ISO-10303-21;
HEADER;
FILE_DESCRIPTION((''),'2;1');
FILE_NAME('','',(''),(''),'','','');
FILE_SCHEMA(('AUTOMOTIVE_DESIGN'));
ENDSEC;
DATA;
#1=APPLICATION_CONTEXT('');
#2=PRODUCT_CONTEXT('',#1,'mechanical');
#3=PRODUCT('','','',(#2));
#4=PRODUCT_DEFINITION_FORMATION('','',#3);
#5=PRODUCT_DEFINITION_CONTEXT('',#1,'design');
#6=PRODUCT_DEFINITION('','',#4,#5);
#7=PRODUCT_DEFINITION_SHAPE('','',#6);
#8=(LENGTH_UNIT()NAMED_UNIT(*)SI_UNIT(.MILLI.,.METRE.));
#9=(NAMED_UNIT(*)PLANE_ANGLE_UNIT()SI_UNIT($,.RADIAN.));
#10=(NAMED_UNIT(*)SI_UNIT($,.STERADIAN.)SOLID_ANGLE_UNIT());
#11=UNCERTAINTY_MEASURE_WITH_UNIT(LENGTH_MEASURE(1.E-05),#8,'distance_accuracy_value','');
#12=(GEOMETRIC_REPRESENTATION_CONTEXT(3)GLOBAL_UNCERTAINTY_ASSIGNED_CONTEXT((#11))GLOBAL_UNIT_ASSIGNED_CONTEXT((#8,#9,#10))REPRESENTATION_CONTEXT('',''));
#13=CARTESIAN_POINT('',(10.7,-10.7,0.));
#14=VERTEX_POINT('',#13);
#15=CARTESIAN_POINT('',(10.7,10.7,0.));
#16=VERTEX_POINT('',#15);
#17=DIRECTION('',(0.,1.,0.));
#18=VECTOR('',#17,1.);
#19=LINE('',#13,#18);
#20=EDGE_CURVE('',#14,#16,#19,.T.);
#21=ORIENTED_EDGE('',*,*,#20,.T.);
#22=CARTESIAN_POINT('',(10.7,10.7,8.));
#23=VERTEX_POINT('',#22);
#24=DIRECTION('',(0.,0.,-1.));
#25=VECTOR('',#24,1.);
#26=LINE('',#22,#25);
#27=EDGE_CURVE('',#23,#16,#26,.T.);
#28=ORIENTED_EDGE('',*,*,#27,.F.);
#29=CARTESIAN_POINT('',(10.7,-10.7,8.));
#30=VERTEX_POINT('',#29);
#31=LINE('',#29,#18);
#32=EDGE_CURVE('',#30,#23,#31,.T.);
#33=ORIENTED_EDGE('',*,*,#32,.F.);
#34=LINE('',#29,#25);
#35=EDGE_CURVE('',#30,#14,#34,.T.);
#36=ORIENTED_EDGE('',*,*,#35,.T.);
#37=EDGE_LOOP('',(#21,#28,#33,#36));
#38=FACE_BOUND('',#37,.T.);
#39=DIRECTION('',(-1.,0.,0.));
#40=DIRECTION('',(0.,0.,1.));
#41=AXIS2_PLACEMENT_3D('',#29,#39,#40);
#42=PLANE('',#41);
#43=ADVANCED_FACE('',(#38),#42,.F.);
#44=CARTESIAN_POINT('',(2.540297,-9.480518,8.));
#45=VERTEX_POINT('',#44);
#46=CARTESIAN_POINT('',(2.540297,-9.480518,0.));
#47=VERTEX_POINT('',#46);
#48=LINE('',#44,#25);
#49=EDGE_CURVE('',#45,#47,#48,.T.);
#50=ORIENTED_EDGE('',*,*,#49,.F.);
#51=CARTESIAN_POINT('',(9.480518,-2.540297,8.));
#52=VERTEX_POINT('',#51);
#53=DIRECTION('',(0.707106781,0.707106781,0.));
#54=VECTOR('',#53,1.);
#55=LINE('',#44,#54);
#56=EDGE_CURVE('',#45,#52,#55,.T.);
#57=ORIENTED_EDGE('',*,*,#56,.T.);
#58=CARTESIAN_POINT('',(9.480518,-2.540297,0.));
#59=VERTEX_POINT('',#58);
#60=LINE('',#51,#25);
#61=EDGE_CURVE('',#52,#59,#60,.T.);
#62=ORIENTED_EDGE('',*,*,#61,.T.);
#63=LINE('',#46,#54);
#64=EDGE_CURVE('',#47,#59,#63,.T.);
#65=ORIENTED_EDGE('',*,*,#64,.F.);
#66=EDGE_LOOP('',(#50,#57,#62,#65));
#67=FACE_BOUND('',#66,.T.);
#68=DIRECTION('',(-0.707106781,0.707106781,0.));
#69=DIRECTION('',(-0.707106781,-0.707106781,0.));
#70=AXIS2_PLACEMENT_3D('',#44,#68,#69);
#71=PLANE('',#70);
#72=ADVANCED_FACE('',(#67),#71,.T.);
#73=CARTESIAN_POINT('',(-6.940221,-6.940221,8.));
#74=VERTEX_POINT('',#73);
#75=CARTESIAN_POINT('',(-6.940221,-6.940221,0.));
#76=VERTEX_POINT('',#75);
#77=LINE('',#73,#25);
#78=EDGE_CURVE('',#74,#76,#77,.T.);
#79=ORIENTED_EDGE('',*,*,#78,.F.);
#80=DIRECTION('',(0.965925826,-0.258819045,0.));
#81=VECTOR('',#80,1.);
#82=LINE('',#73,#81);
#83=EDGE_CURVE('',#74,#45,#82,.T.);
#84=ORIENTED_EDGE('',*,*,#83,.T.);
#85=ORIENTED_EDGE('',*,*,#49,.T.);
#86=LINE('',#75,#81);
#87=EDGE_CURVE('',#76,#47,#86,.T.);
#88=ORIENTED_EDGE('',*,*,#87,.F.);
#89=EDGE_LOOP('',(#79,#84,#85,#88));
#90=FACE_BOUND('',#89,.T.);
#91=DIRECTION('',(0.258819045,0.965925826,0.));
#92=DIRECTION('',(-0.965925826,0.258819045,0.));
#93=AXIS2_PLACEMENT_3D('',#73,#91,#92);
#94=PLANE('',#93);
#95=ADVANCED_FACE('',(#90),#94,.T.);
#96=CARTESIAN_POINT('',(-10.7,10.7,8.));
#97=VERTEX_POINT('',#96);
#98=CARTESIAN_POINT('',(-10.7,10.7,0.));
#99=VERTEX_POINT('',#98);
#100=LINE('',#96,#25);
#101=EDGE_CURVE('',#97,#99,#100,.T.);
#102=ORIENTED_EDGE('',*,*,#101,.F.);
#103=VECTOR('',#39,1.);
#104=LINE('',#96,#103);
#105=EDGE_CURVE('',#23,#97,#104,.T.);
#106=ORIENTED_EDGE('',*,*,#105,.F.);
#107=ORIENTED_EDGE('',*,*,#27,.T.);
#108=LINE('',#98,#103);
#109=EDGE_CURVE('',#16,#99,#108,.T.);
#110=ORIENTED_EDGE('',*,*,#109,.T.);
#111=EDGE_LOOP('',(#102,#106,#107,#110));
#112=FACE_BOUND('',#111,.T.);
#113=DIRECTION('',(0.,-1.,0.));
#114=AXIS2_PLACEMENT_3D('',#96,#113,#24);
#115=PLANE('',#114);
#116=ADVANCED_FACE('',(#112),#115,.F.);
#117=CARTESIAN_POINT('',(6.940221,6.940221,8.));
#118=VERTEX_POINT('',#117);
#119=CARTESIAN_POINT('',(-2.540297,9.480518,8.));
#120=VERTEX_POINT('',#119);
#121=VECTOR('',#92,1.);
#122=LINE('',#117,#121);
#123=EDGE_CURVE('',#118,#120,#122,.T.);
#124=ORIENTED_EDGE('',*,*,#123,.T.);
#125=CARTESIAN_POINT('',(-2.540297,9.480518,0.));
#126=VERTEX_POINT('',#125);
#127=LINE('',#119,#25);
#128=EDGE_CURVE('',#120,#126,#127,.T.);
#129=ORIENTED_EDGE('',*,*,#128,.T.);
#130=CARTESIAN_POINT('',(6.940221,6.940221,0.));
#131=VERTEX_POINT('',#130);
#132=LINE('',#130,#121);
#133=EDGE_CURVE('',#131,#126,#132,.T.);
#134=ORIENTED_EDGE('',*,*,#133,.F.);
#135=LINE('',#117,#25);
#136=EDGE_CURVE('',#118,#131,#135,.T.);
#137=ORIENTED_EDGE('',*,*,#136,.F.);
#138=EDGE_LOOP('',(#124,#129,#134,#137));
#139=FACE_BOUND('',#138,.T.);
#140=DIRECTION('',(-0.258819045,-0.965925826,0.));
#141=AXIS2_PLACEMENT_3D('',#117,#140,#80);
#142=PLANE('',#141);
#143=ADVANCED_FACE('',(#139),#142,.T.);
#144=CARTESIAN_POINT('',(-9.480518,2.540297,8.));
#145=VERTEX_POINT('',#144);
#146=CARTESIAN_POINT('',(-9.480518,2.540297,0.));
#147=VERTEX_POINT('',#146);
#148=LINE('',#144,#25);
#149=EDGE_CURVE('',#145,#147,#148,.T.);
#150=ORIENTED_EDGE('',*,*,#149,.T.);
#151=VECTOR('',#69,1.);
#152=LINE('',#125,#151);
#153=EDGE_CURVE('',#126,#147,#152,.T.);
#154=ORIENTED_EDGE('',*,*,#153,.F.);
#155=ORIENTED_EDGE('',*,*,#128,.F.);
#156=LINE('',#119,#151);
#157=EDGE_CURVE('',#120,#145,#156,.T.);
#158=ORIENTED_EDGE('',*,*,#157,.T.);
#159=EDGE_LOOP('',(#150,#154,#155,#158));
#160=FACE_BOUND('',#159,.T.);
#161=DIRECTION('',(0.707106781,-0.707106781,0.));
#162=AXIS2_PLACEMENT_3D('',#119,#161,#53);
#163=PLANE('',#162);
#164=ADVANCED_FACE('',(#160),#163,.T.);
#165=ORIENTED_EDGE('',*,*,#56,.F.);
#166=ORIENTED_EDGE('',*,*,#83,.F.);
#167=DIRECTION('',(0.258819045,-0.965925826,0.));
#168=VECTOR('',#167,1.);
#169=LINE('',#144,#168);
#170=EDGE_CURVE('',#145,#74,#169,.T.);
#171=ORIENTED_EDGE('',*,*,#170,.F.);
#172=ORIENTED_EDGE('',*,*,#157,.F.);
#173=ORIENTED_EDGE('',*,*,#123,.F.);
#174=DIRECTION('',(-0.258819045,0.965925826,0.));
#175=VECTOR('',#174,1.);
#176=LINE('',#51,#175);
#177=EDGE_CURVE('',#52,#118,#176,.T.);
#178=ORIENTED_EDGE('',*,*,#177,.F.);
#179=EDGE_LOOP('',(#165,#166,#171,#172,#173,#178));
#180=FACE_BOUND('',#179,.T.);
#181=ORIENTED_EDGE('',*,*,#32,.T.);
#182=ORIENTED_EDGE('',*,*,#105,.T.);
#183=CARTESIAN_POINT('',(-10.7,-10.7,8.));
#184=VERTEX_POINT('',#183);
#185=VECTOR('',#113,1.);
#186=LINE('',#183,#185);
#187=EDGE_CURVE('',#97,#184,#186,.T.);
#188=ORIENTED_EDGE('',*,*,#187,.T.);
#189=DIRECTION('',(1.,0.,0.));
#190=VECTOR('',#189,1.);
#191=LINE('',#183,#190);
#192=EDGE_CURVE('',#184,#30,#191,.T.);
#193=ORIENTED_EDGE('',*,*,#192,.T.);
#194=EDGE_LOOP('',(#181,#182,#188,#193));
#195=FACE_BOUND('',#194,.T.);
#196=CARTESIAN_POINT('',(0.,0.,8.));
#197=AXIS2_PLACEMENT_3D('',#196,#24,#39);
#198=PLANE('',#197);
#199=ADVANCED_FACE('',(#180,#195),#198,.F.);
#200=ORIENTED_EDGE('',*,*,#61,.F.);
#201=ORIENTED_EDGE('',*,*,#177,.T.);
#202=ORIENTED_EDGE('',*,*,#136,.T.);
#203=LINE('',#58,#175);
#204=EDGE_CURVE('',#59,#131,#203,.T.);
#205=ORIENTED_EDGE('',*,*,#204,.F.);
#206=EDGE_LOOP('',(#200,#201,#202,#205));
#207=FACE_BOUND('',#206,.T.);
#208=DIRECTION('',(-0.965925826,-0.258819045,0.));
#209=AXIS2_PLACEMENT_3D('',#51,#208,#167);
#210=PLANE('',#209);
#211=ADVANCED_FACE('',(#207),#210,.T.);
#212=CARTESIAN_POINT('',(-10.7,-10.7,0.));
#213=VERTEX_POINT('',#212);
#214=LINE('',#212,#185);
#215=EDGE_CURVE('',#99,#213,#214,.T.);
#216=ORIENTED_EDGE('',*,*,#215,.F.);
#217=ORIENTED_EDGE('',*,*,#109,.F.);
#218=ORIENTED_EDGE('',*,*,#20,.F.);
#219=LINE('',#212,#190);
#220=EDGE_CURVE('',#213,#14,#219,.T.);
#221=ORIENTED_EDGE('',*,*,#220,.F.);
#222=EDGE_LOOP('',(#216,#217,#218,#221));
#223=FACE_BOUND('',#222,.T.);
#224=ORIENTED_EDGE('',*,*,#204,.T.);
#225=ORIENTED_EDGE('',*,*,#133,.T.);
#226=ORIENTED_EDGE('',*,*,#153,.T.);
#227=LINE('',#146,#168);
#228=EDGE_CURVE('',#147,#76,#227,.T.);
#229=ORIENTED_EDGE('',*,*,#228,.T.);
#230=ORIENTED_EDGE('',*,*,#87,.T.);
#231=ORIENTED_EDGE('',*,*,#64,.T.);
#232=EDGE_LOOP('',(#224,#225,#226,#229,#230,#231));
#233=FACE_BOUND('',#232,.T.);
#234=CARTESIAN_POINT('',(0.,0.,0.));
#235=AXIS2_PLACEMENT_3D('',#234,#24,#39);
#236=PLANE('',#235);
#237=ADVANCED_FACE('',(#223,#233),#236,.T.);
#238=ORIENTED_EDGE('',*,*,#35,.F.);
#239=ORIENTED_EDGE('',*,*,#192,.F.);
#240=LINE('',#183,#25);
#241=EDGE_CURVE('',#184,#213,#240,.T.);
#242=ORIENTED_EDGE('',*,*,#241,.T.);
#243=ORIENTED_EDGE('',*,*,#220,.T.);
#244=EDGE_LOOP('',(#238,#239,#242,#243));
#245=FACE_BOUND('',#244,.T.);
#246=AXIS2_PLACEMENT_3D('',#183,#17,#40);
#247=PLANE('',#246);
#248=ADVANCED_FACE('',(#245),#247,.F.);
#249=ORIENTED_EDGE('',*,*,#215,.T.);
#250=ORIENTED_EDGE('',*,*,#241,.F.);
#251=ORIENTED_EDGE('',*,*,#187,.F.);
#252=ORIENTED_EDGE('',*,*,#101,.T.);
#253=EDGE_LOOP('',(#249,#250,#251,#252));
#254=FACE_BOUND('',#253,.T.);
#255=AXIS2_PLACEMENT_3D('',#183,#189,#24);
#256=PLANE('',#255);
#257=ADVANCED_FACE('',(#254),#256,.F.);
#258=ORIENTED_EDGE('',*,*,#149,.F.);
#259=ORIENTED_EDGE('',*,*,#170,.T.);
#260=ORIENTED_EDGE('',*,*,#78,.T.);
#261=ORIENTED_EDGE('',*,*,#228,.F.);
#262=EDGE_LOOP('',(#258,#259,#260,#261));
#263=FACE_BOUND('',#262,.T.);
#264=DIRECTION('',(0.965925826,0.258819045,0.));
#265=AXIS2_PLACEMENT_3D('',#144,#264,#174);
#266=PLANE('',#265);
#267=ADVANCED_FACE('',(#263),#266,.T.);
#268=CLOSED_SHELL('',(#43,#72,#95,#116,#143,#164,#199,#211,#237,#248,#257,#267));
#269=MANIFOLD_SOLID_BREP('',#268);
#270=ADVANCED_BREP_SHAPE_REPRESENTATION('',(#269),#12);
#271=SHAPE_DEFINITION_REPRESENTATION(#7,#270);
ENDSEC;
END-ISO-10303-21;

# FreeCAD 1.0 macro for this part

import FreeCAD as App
import Part
import Sketcher
Q = App.Units.Quantity


def add_polygon(sketch, points):
    """Adds a closed chain of lines whose ends are joined by coincident constraints."""
    first, n = sketch.GeometryCount, len(points)
    for a, b in zip(points, points[1:] + points[:1]):
        sketch.addGeometry(Part.LineSegment(App.Vector(*a, 0), App.Vector(*b, 0)), False)
    for i in range(n):
        sketch.addConstraint(Sketcher.Constraint("Coincident", first + i, 2, first + (i + 1) % n, 1))

doc = App.newDocument("Part")
body = doc.addObject("PartDesign::Body", "Body")

sketch1 = body.newObject("Sketcher::SketchObject", "Sketch")
sketch1.AttachmentSupport = (doc.getObject("XY_Plane"), [""])
sketch1.MapMode = "FlatFace"
add_polygon(sketch1, [(-10.7, 10.7), (-10.7, -10.7), (10.7, -10.7), (10.7, 10.7)])
add_polygon(sketch1, [(-6.940221, -6.940221), (-9.480518, 2.540297), (-2.540297, 9.480518), (6.940221, 6.940221), (9.480518, -2.540297), (2.540297, -9.480518)])
sketch1.addConstraint([
    Sketcher.Constraint("Vertical", 0),
    Sketcher.Constraint("Horizontal", 1),
    Sketcher.Constraint("Vertical", 2),
    Sketcher.Constraint("Horizontal", 3),
    Sketcher.Constraint("Symmetric", 0, 2, 2, 2, -1, 1),
    Sketcher.Constraint("Symmetric", 4, 2, 7, 2, -1, 1),
    Sketcher.Constraint("Symmetric", 5, 2, 8, 2, -1, 1),
    Sketcher.Constraint("Symmetric", 6, 2, 9, 2, -1, 1),
    Sketcher.Constraint("Equal", 3, 0),
    Sketcher.Constraint("Equal", 4, 5),
    Sketcher.Constraint("Equal", 5, 6),
    Sketcher.Constraint("Angle", 4, Q("105 deg")),
    Sketcher.Constraint("Angle", 5, Q("45 deg")),
    Sketcher.Constraint("Angle", 6, Q("-15 deg")),
    Sketcher.Constraint("DistanceX", 1, 1, 1, 2, 21.4),
    Sketcher.Constraint("DistanceX", 4, 2, -1, 1, 9.480518),
])
pad1 = body.newObject("PartDesign::Pad", "Pad")
pad1.Profile = sketch1
pad1.Length = 8

doc.recompute()
